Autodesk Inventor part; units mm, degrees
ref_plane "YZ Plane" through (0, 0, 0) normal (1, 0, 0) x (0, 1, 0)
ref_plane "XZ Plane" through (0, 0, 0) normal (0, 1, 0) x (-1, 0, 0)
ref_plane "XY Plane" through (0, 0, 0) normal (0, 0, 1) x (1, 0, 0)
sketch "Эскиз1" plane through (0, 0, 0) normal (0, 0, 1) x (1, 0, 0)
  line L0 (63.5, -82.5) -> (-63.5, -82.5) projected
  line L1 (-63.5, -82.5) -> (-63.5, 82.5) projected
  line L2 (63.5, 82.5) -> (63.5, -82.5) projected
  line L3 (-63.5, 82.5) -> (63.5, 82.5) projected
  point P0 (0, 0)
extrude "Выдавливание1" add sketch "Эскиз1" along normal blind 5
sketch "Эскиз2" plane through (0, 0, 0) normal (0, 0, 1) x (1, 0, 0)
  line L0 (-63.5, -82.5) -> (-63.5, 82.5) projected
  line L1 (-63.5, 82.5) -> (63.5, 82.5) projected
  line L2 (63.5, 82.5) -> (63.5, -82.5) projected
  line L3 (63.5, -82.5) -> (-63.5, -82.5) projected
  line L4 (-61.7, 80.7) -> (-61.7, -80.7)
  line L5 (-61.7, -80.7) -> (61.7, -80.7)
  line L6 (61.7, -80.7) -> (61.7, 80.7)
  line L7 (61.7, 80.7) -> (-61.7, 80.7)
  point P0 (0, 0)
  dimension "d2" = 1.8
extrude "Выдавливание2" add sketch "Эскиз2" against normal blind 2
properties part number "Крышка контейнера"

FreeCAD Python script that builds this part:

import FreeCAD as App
import Part
import Sketcher
from FreeCAD import Vector
Q = App.Units.Quantity


def add_polygon(sketch, points):
    """Adds a closed chain of lines whose ends are joined by coincident constraints."""
    first, n = sketch.GeometryCount, len(points)
    for a, b in zip(points, points[1:] + points[:1]):
        sketch.addGeometry(Part.LineSegment(App.Vector(*a, 0), App.Vector(*b, 0)), False)
    for i in range(n):
        sketch.addConstraint(Sketcher.Constraint("Coincident", first + i, 2, first + (i + 1) % n, 1))

doc = App.newDocument("Part")
params = doc.addObject("Spreadsheet::Sheet", "Params")
for row, (alias, value) in enumerate([
    ("sketch1_width", "127 mm"),
    ("sketch1_height", "165 mm"),
    ("pad1_length", "5 mm"),
    ("sketch2_width", "127 mm"),
    ("sketch2_height", "165 mm"),
    ("pad2_length", "2 mm"),
], start=1):
    params.set(f"A{row}", alias)
    params.set(f"B{row}", "=" + value)
    params.setAlias(f"B{row}", alias)

body = doc.addObject("PartDesign::Body", "Body")

sketch1 = doc.addObject("Sketcher::SketchObject", "Sketch")
body.addObject(sketch1)
sketch1.AttachmentSupport = (doc.XY_Plane, [""])
sketch1.MapMode = "FlatFace"
add_polygon(sketch1, [(-64, -82), (64, -82), (64, 82), (-64, 82)])
sketch1.addConstraint(Sketcher.Constraint("Horizontal", 0))
sketch1.addConstraint(Sketcher.Constraint("Vertical", 1))
sketch1.addConstraint(Sketcher.Constraint("Horizontal", 2))
sketch1.addConstraint(Sketcher.Constraint("Vertical", 3))
sketch1.addConstraint(Sketcher.Constraint("Symmetric", 0, 2, 2, 2, -1, 1))
sketch1.addConstraint(Sketcher.Constraint("DistanceX", 0, 1, 0, 2, Q("127 mm")))
sketch1.addConstraint(Sketcher.Constraint("DistanceY", 1, 1, 1, 2, Q("165 mm")))
sketch1.setExpression("Constraints[9]", "Params.sketch1_width")
sketch1.setExpression("Constraints[10]", "Params.sketch1_height")
pad1 = doc.addObject("PartDesign::Pad", "Pad")
body.addObject(pad1)
pad1.Profile = sketch1
pad1.setExpression("Length", "Params.pad1_length")

sketch2 = doc.addObject("Sketcher::SketchObject", "Sketch001")
body.addObject(sketch2)
sketch2.AttachmentSupport = (doc.XY_Plane, [""])
sketch2.MapMode = "FlatFace"
add_polygon(sketch2, [(-64, 82), (-64, -82), (64, -82), (64, 82)])
add_polygon(sketch2, [(-62, -81), (-62, 81), (62, 81), (62, -81)])
sketch2.addConstraint(Sketcher.Constraint("Vertical", 0))
sketch2.addConstraint(Sketcher.Constraint("Horizontal", 1))
sketch2.addConstraint(Sketcher.Constraint("Vertical", 2))
sketch2.addConstraint(Sketcher.Constraint("Horizontal", 3))
sketch2.addConstraint(Sketcher.Constraint("Vertical", 4))
sketch2.addConstraint(Sketcher.Constraint("Horizontal", 5))
sketch2.addConstraint(Sketcher.Constraint("Vertical", 6))
sketch2.addConstraint(Sketcher.Constraint("Horizontal", 7))
sketch2.addConstraint(Sketcher.Constraint("Symmetric", 0, 2, 2, 2, -1, 1))
sketch2.addConstraint(Sketcher.Constraint("Symmetric", 4, 2, 6, 2, -1, 1))
sketch2.addConstraint(Sketcher.Constraint("DistanceX", 3, 2, 4, 2, Q("1.8 mm")))
sketch2.addConstraint(Sketcher.Constraint("DistanceY", 4, 2, 3, 2, Q("1.8 mm")))
sketch2.addConstraint(Sketcher.Constraint("DistanceX", 1, 1, 1, 2, Q("127 mm")))
sketch2.addConstraint(Sketcher.Constraint("DistanceY", 0, 2, 0, 1, Q("165 mm")))
sketch2.setExpression("Constraints[20]", "Params.sketch2_width")
sketch2.setExpression("Constraints[21]", "Params.sketch2_height")
pad2 = doc.addObject("PartDesign::Pad", "Pad001")
body.addObject(pad2)
pad2.Profile = sketch2
pad2.setExpression("Length", "Params.pad2_length")
pad2.Reversed = True

doc.recompute()
